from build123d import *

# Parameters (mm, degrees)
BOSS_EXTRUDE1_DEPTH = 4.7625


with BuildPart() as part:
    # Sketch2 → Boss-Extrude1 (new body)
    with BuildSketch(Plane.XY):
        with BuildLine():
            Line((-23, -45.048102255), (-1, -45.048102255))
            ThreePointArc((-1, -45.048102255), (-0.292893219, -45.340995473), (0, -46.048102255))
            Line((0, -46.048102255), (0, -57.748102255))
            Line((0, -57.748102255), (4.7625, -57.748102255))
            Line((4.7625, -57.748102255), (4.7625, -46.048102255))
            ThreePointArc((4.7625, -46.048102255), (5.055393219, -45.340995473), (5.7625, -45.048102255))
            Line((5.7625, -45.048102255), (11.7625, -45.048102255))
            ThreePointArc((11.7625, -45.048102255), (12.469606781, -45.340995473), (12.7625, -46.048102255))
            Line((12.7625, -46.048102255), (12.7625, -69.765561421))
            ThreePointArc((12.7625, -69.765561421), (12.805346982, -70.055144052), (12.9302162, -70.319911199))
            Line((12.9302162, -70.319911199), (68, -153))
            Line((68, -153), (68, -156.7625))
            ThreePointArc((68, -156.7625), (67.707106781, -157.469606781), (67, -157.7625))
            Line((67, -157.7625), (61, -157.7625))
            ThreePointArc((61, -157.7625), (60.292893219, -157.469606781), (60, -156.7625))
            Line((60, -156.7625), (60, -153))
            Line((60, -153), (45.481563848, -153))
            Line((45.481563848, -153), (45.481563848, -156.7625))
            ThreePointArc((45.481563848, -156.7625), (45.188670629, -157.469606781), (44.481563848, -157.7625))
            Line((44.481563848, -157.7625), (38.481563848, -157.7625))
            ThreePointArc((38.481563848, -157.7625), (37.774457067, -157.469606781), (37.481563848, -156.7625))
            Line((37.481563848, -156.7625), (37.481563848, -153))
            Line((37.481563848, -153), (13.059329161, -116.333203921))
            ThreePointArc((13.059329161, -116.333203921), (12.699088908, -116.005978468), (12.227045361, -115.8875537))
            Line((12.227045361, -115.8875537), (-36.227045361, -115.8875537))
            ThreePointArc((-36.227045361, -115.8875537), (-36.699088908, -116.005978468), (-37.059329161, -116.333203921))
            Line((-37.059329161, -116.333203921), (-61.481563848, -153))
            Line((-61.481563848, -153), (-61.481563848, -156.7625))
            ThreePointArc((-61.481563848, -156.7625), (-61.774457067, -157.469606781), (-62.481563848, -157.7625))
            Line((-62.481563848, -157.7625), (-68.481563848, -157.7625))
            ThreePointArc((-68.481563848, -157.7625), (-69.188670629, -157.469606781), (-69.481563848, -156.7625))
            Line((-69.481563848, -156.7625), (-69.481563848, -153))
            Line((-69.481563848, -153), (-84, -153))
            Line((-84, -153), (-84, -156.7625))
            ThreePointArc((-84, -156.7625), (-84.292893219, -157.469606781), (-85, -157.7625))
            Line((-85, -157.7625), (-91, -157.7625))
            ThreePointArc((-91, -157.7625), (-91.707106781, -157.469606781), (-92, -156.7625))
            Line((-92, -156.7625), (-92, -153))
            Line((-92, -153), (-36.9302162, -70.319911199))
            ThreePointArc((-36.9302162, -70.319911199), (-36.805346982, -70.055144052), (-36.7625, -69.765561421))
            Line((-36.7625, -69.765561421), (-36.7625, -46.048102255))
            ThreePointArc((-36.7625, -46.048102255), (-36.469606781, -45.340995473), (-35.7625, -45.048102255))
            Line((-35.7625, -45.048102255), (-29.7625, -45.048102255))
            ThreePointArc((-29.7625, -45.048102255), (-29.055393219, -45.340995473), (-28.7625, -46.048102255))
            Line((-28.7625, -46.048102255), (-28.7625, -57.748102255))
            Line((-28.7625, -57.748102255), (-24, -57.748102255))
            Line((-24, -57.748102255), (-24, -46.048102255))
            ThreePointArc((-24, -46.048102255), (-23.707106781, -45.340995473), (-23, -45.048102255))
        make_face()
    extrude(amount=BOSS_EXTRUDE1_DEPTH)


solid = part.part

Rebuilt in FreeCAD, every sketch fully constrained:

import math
import FreeCAD as App
import Part
import Sketcher

doc = App.newDocument("Part")
body = doc.addObject("PartDesign::Body", "Body")

# Sketch on XY plane
sketch1 = body.newObject("Sketcher::SketchObject", "Sketch")
sketch1.AttachmentSupport = (doc.getObject("XY_Plane"), [""])
sketch1.MapMode = "FlatFace"
sketch1.addGeometry(Part.LineSegment(App.Vector(-1, -45.048102, 0), App.Vector(-23, -45.048102, 0)), False)
sketch1.addGeometry(Part.ArcOfCircle(Part.Circle(App.Vector(-23, -46.048102, 0), App.Vector(0, 0, 1), 1), math.radians(90), math.radians(180)), False)
sketch1.addGeometry(Part.LineSegment(App.Vector(-24, -46.048102, 0), App.Vector(-24, -57.748102, 0)), False)
sketch1.addGeometry(Part.LineSegment(App.Vector(-24, -57.748102, 0), App.Vector(-28.7625, -57.748102, 0)), False)
sketch1.addGeometry(Part.LineSegment(App.Vector(-28.7625, -57.748102, 0), App.Vector(-28.7625, -46.048102, 0)), False)
sketch1.addGeometry(Part.ArcOfCircle(Part.Circle(App.Vector(-29.7625, -46.048102, 0), App.Vector(0, 0, 1), 1), math.radians(0), math.radians(90)), False)
sketch1.addGeometry(Part.LineSegment(App.Vector(-29.7625, -45.048102, 0), App.Vector(-35.7625, -45.048102, 0)), False)
sketch1.addGeometry(Part.ArcOfCircle(Part.Circle(App.Vector(-35.7625, -46.048102, 0), App.Vector(0, 0, 1), 1), math.radians(90), math.radians(180)), False)
sketch1.addGeometry(Part.LineSegment(App.Vector(-36.7625, -46.048102, 0), App.Vector(-36.7625, -69.765561, 0)), False)
sketch1.addGeometry(Part.ArcOfCircle(Part.Circle(App.Vector(-37.7625, -69.765561, 0), App.Vector(0, 0, 1), 1), math.radians(-33.665941), math.radians(0)), False)
sketch1.addGeometry(Part.LineSegment(App.Vector(-36.930216, -70.319911, 0), App.Vector(-92, -153, 0)), False)
sketch1.addGeometry(Part.LineSegment(App.Vector(-92, -153, 0), App.Vector(-92, -156.7625, 0)), False)
sketch1.addGeometry(Part.ArcOfCircle(Part.Circle(App.Vector(-91, -156.7625, 0), App.Vector(0, 0, 1), 1), math.radians(-180), math.radians(-90)), False)
sketch1.addGeometry(Part.LineSegment(App.Vector(-91, -157.7625, 0), App.Vector(-85, -157.7625, 0)), False)
sketch1.addGeometry(Part.ArcOfCircle(Part.Circle(App.Vector(-85, -156.7625, 0), App.Vector(0, 0, 1), 1), math.radians(-90), math.radians(0)), False)
sketch1.addGeometry(Part.LineSegment(App.Vector(-84, -156.7625, 0), App.Vector(-84, -153, 0)), False)
sketch1.addGeometry(Part.LineSegment(App.Vector(-84, -153, 0), App.Vector(-69.481564, -153, 0)), False)
sketch1.addGeometry(Part.LineSegment(App.Vector(-69.481564, -153, 0), App.Vector(-69.481564, -156.7625, 0)), False)
sketch1.addGeometry(Part.ArcOfCircle(Part.Circle(App.Vector(-68.481564, -156.7625, 0), App.Vector(0, 0, 1), 1), math.radians(-180), math.radians(-90)), False)
sketch1.addGeometry(Part.LineSegment(App.Vector(-68.481564, -157.7625, 0), App.Vector(-62.481564, -157.7625, 0)), False)
sketch1.addGeometry(Part.ArcOfCircle(Part.Circle(App.Vector(-62.481564, -156.7625, 0), App.Vector(0, 0, 1), 1), math.radians(-90), math.radians(0)), False)
sketch1.addGeometry(Part.LineSegment(App.Vector(-61.481564, -156.7625, 0), App.Vector(-61.481564, -153, 0)), False)
sketch1.addGeometry(Part.LineSegment(App.Vector(-61.481564, -153, 0), App.Vector(-37.059329, -116.333204, 0)), False)
sketch1.addGeometry(Part.ArcOfCircle(Part.Circle(App.Vector(-36.227045, -116.887554, 0), App.Vector(0, 0, 1), 1), math.radians(90), math.radians(146.334059)), False)
sketch1.addGeometry(Part.LineSegment(App.Vector(-36.227045, -115.887554, 0), App.Vector(12.227045, -115.887554, 0)), False)
sketch1.addGeometry(Part.ArcOfCircle(Part.Circle(App.Vector(12.227045, -116.887554, 0), App.Vector(0, 0, 1), 1), math.radians(33.665941), math.radians(90)), False)
sketch1.addGeometry(Part.LineSegment(App.Vector(13.059329, -116.333204, 0), App.Vector(37.481564, -153, 0)), False)
sketch1.addGeometry(Part.LineSegment(App.Vector(37.481564, -153, 0), App.Vector(37.481564, -156.7625, 0)), False)
sketch1.addGeometry(Part.ArcOfCircle(Part.Circle(App.Vector(38.481564, -156.7625, 0), App.Vector(0, 0, 1), 1), math.radians(-180), math.radians(-90)), False)
sketch1.addGeometry(Part.LineSegment(App.Vector(38.481564, -157.7625, 0), App.Vector(44.481564, -157.7625, 0)), False)
sketch1.addGeometry(Part.ArcOfCircle(Part.Circle(App.Vector(44.481564, -156.7625, 0), App.Vector(0, 0, 1), 1), math.radians(-90), math.radians(0)), False)
sketch1.addGeometry(Part.LineSegment(App.Vector(45.481564, -156.7625, 0), App.Vector(45.481564, -153, 0)), False)
sketch1.addGeometry(Part.LineSegment(App.Vector(45.481564, -153, 0), App.Vector(60, -153, 0)), False)
sketch1.addGeometry(Part.LineSegment(App.Vector(60, -153, 0), App.Vector(60, -156.7625, 0)), False)
sketch1.addGeometry(Part.ArcOfCircle(Part.Circle(App.Vector(61, -156.7625, 0), App.Vector(0, 0, 1), 1), math.radians(-180), math.radians(-90)), False)
sketch1.addGeometry(Part.LineSegment(App.Vector(61, -157.7625, 0), App.Vector(67, -157.7625, 0)), False)
sketch1.addGeometry(Part.ArcOfCircle(Part.Circle(App.Vector(67, -156.7625, 0), App.Vector(0, 0, 1), 1), math.radians(-90), math.radians(0)), False)
sketch1.addGeometry(Part.LineSegment(App.Vector(68, -156.7625, 0), App.Vector(68, -153, 0)), False)
sketch1.addGeometry(Part.LineSegment(App.Vector(68, -153, 0), App.Vector(12.930216, -70.319911, 0)), False)
sketch1.addGeometry(Part.ArcOfCircle(Part.Circle(App.Vector(13.7625, -69.765561, 0), App.Vector(0, 0, 1), 1), math.radians(180), math.radians(213.665941)), False)
sketch1.addGeometry(Part.LineSegment(App.Vector(12.7625, -69.765561, 0), App.Vector(12.7625, -46.048102, 0)), False)
sketch1.addGeometry(Part.ArcOfCircle(Part.Circle(App.Vector(11.7625, -46.048102, 0), App.Vector(0, 0, 1), 1), math.radians(0), math.radians(90)), False)
sketch1.addGeometry(Part.LineSegment(App.Vector(11.7625, -45.048102, 0), App.Vector(5.7625, -45.048102, 0)), False)
sketch1.addGeometry(Part.ArcOfCircle(Part.Circle(App.Vector(5.7625, -46.048102, 0), App.Vector(0, 0, 1), 1), math.radians(90), math.radians(180)), False)
sketch1.addGeometry(Part.LineSegment(App.Vector(4.7625, -46.048102, 0), App.Vector(4.7625, -57.748102, 0)), False)
sketch1.addGeometry(Part.LineSegment(App.Vector(4.7625, -57.748102, 0), App.Vector(0, -57.748102, 0)), False)
sketch1.addGeometry(Part.LineSegment(App.Vector(0, -57.748102, 0), App.Vector(0, -46.048102, 0)), False)
sketch1.addGeometry(Part.ArcOfCircle(Part.Circle(App.Vector(-1, -46.048102, 0), App.Vector(0, 0, 1), 1), math.radians(0), math.radians(90)), False)
sketch1.addConstraint(Sketcher.Constraint("Tangent", 0, 2, 1, 1))
sketch1.addConstraint(Sketcher.Constraint("Tangent", 1, 2, 2, 1))
sketch1.addConstraint(Sketcher.Constraint("Coincident", 2, 2, 3, 1))
sketch1.addConstraint(Sketcher.Constraint("Coincident", 3, 2, 4, 1))
sketch1.addConstraint(Sketcher.Constraint("Tangent", 4, 2, 5, 1))
sketch1.addConstraint(Sketcher.Constraint("Tangent", 5, 2, 6, 1))
sketch1.addConstraint(Sketcher.Constraint("Tangent", 6, 2, 7, 1))
sketch1.addConstraint(Sketcher.Constraint("Tangent", 7, 2, 8, 1))
sketch1.addConstraint(Sketcher.Constraint("Tangent", 8, 2, 9, 2))
sketch1.addConstraint(Sketcher.Constraint("Tangent", 9, 1, 10, 1))
sketch1.addConstraint(Sketcher.Constraint("Coincident", 10, 2, 11, 1))
sketch1.addConstraint(Sketcher.Constraint("Tangent", 11, 2, 12, 1))
sketch1.addConstraint(Sketcher.Constraint("Tangent", 12, 2, 13, 1))
sketch1.addConstraint(Sketcher.Constraint("Tangent", 13, 2, 14, 1))
sketch1.addConstraint(Sketcher.Constraint("Tangent", 14, 2, 15, 1))
sketch1.addConstraint(Sketcher.Constraint("Coincident", 15, 2, 16, 1))
sketch1.addConstraint(Sketcher.Constraint("Coincident", 16, 2, 17, 1))
sketch1.addConstraint(Sketcher.Constraint("Tangent", 17, 2, 18, 1))
sketch1.addConstraint(Sketcher.Constraint("Tangent", 18, 2, 19, 1))
sketch1.addConstraint(Sketcher.Constraint("Tangent", 19, 2, 20, 1))
sketch1.addConstraint(Sketcher.Constraint("Tangent", 20, 2, 21, 1))
sketch1.addConstraint(Sketcher.Constraint("Coincident", 21, 2, 22, 1))
sketch1.addConstraint(Sketcher.Constraint("Tangent", 22, 2, 23, 2))
sketch1.addConstraint(Sketcher.Constraint("Tangent", 23, 1, 24, 1))
sketch1.addConstraint(Sketcher.Constraint("Tangent", 24, 2, 25, 2))
sketch1.addConstraint(Sketcher.Constraint("Tangent", 25, 1, 26, 1))
sketch1.addConstraint(Sketcher.Constraint("Coincident", 26, 2, 27, 1))
sketch1.addConstraint(Sketcher.Constraint("Tangent", 27, 2, 28, 1))
sketch1.addConstraint(Sketcher.Constraint("Tangent", 28, 2, 29, 1))
sketch1.addConstraint(Sketcher.Constraint("Tangent", 29, 2, 30, 1))
sketch1.addConstraint(Sketcher.Constraint("Tangent", 30, 2, 31, 1))
sketch1.addConstraint(Sketcher.Constraint("Coincident", 31, 2, 32, 1))
sketch1.addConstraint(Sketcher.Constraint("Coincident", 32, 2, 33, 1))
sketch1.addConstraint(Sketcher.Constraint("Tangent", 33, 2, 34, 1))
sketch1.addConstraint(Sketcher.Constraint("Tangent", 34, 2, 35, 1))
sketch1.addConstraint(Sketcher.Constraint("Tangent", 35, 2, 36, 1))
sketch1.addConstraint(Sketcher.Constraint("Tangent", 36, 2, 37, 1))
sketch1.addConstraint(Sketcher.Constraint("Coincident", 37, 2, 38, 1))
sketch1.addConstraint(Sketcher.Constraint("Tangent", 38, 2, 39, 2))
sketch1.addConstraint(Sketcher.Constraint("Tangent", 39, 1, 40, 1))
sketch1.addConstraint(Sketcher.Constraint("Tangent", 40, 2, 41, 1))
sketch1.addConstraint(Sketcher.Constraint("Tangent", 41, 2, 42, 1))
sketch1.addConstraint(Sketcher.Constraint("Tangent", 42, 2, 43, 1))
sketch1.addConstraint(Sketcher.Constraint("Tangent", 43, 2, 44, 1))
sketch1.addConstraint(Sketcher.Constraint("Coincident", 44, 2, 45, 1))
sketch1.addConstraint(Sketcher.Constraint("Coincident", 45, 2, 46, 1))
sketch1.addConstraint(Sketcher.Constraint("Tangent", 46, 2, 47, 1))
sketch1.addConstraint(Sketcher.Constraint("Tangent", 47, 2, 0, 1))
sketch1.addConstraint(Sketcher.Constraint("Horizontal", 0))
sketch1.addConstraint(Sketcher.Constraint("Vertical", 2))
sketch1.addConstraint(Sketcher.Constraint("Horizontal", 3))
sketch1.addConstraint(Sketcher.Constraint("Vertical", 4))
sketch1.addConstraint(Sketcher.Constraint("Horizontal", 6))
sketch1.addConstraint(Sketcher.Constraint("Vertical", 8))
sketch1.addConstraint(Sketcher.Constraint("Vertical", 11))
sketch1.addConstraint(Sketcher.Constraint("Horizontal", 13))
sketch1.addConstraint(Sketcher.Constraint("Vertical", 15))
sketch1.addConstraint(Sketcher.Constraint("Horizontal", 16))
sketch1.addConstraint(Sketcher.Constraint("Vertical", 17))
sketch1.addConstraint(Sketcher.Constraint("Horizontal", 19))
sketch1.addConstraint(Sketcher.Constraint("Vertical", 21))
sketch1.addConstraint(Sketcher.Constraint("Horizontal", 24))
sketch1.addConstraint(Sketcher.Constraint("Vertical", 27))
sketch1.addConstraint(Sketcher.Constraint("Horizontal", 29))
sketch1.addConstraint(Sketcher.Constraint("Vertical", 31))
sketch1.addConstraint(Sketcher.Constraint("Horizontal", 32))
sketch1.addConstraint(Sketcher.Constraint("Vertical", 33))
sketch1.addConstraint(Sketcher.Constraint("Horizontal", 35))
sketch1.addConstraint(Sketcher.Constraint("Vertical", 37))
sketch1.addConstraint(Sketcher.Constraint("Vertical", 40))
sketch1.addConstraint(Sketcher.Constraint("Horizontal", 42))
sketch1.addConstraint(Sketcher.Constraint("Vertical", 44))
sketch1.addConstraint(Sketcher.Constraint("Horizontal", 45))
sketch1.addConstraint(Sketcher.Constraint("Vertical", 46))
sketch1.addConstraint(Sketcher.Constraint("Equal", 1, 5))
sketch1.addConstraint(Sketcher.Constraint("Equal", 5, 7))
sketch1.addConstraint(Sketcher.Constraint("Equal", 7, 9))
sketch1.addConstraint(Sketcher.Constraint("Equal", 9, 12))
sketch1.addConstraint(Sketcher.Constraint("Equal", 12, 14))
sketch1.addConstraint(Sketcher.Constraint("Equal", 14, 18))
sketch1.addConstraint(Sketcher.Constraint("Equal", 18, 20))
sketch1.addConstraint(Sketcher.Constraint("Equal", 20, 23))
sketch1.addConstraint(Sketcher.Constraint("Equal", 23, 25))
sketch1.addConstraint(Sketcher.Constraint("Equal", 25, 28))
sketch1.addConstraint(Sketcher.Constraint("Equal", 28, 30))
sketch1.addConstraint(Sketcher.Constraint("Equal", 30, 34))
sketch1.addConstraint(Sketcher.Constraint("Equal", 34, 36))
sketch1.addConstraint(Sketcher.Constraint("Equal", 36, 39))
sketch1.addConstraint(Sketcher.Constraint("Equal", 39, 41))
sketch1.addConstraint(Sketcher.Constraint("Equal", 41, 43))
sketch1.addConstraint(Sketcher.Constraint("Equal", 43, 47))
sketch1.addConstraint(Sketcher.Constraint("PointOnObject", 45, 2, -2))
sketch1.addConstraint(Sketcher.Constraint("Parallel", 10, 22))
sketch1.addConstraint(Sketcher.Constraint("Parallel", 26, 38))
sketch1.addConstraint(Sketcher.Constraint("Horizontal", 1, 3, 5, 3))
sketch1.addConstraint(Sketcher.Constraint("Horizontal", 14, 3, 18, 3))
sketch1.addConstraint(Sketcher.Constraint("Horizontal", 20, 3, 28, 3))
sketch1.addConstraint(Sketcher.Constraint("Horizontal", 30, 3, 34, 3))
sketch1.addConstraint(Sketcher.Constraint("Horizontal", 9, 3, 39, 3))
sketch1.addConstraint(Sketcher.Constraint("Horizontal", 7, 3, 41, 3))
sketch1.addConstraint(Sketcher.Constraint("Horizontal", 10, 2, 15, 2))
sketch1.addConstraint(Sketcher.Constraint("Horizontal", 16, 2, 21, 2))
sketch1.addConstraint(Sketcher.Constraint("Horizontal", 22, 2, 25, 1))
sketch1.addConstraint(Sketcher.Constraint("Horizontal", 21, 2, 26, 2))
sketch1.addConstraint(Sketcher.Constraint("Horizontal", 26, 2, 31, 2))
sketch1.addConstraint(Sketcher.Constraint("Horizontal", 32, 2, 37, 2))
sketch1.addConstraint(Sketcher.Constraint("Horizontal", 3, 2, 44, 2))
sketch1.addConstraint(Sketcher.Constraint("Equal", 6, 13))
sketch1.addConstraint(Sketcher.Constraint("Equal", 13, 19))
sketch1.addConstraint(Sketcher.Constraint("Equal", 19, 29))
sketch1.addConstraint(Sketcher.Constraint("Equal", 16, 32))
sketch1.addConstraint(Sketcher.Constraint("Equal", 29, 35))
sketch1.addConstraint(Sketcher.Constraint("Equal", 35, 42))
sketch1.addConstraint(Sketcher.Constraint("Equal", 3, 45))
sketch1.addConstraint(Sketcher.Constraint("Radius", 1, 1.0))
sketch1.addConstraint(Sketcher.Constraint("DistanceX", 0, 2, 0, 1, 22.0))
sketch1.addConstraint(Sketcher.Constraint("DistanceX", 6, 2, 6, 1, 6.0))
sketch1.addConstraint(Sketcher.Constraint("DistanceY", 2, 2, 2, 1, 11.7))
sketch1.addConstraint(Sketcher.Constraint("DistanceX", 12, 3, -1, 1, 91.0))
sketch1.addConstraint(Sketcher.Constraint("DistanceY", 10, 2, -1, 1, 153.0))
sketch1.addConstraint(Sketcher.Constraint("DistanceX", 3, 2, 3, 1, 4.7625))
sketch1.addConstraint(Sketcher.Constraint("DistanceY", 11, 2, 11, 1, 3.7625))
sketch1.addConstraint(Sketcher.Constraint("DistanceX", 24, 1, 24, 2, 48.454091))
sketch1.addConstraint(Sketcher.Constraint("DistanceY", 8, 2, 8, 1, 23.717459))
sketch1.addConstraint(Sketcher.Constraint("Distance", 10, 99.341221))
sketch1.addConstraint(Sketcher.Constraint("Distance", 22, 44.055641))
pad1 = body.newObject("PartDesign::Pad", "Pad")
pad1.Profile = sketch1
pad1.Length = 4.7625

doc.recompute()
